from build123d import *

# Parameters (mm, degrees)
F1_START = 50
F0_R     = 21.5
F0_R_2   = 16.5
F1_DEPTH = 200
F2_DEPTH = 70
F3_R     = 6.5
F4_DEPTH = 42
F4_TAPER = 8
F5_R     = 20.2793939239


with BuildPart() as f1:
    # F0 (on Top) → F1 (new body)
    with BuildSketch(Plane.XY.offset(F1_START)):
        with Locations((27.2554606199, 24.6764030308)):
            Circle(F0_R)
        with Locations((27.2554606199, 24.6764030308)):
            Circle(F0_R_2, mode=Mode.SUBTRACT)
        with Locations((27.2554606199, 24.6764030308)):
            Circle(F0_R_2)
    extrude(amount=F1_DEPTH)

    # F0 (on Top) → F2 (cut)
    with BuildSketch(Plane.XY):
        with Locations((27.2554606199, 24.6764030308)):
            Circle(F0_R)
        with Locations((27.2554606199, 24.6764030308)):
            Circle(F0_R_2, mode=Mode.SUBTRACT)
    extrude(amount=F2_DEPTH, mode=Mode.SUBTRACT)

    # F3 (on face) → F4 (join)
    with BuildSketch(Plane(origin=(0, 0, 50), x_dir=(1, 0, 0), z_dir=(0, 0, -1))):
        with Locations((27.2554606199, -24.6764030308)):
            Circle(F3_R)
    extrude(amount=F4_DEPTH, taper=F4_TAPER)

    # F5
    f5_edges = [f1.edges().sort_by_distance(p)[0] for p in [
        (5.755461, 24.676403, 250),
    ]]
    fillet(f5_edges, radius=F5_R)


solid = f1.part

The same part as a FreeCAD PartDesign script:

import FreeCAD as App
import Part
import Sketcher
from FreeCAD import Vector
Q = App.Units.Quantity


def edges_at(feature, points):
    """Names of the edges that pass closest to the given points."""
    edges = feature.Shape.Edges
    near = lambda p: min(range(len(edges)), key=lambda i: edges[i].distToShape(Part.Vertex(*p))[0])
    return sorted({f"Edge{near(p) + 1}" for p in points})

doc = App.newDocument("Part")
body = doc.addObject("PartDesign::Body", "Body")

# Sketch on XY plane
sketch1 = doc.addObject("Sketcher::SketchObject", "Sketch")
body.addObject(sketch1)
sketch1.AttachmentSupport = (doc.XY_Plane, [""])
sketch1.MapMode = "FlatFace"
sketch1.AttachmentOffset = App.Placement(Vector(0, 0, 50), App.Rotation())
sketch1.addGeometry(Part.Circle(Vector(27.255461, 24.676403, 0), Vector(0, 0, 1), 21.5), False)
sketch1.addConstraint([
    Sketcher.Constraint("Diameter", 0, Q("43 mm")),
    Sketcher.Constraint("DistanceX", -1, 1, 0, 3, Q("27.255461 mm")),
    Sketcher.Constraint("DistanceY", -1, 1, 0, 3, Q("24.676403 mm")),
])
pad1 = doc.addObject("PartDesign::Pad", "Pad")
body.addObject(pad1)
pad1.Profile = sketch1
pad1.Length = 200

# Sketch on XY plane
sketch2 = doc.addObject("Sketcher::SketchObject", "Sketch001")
body.addObject(sketch2)
sketch2.AttachmentSupport = (doc.XY_Plane, [""])
sketch2.MapMode = "FlatFace"
sketch2.addGeometry([
    Part.Circle(Vector(27.255461, 24.676403, 0), Vector(0, 0, 1), 21.5),
    Part.Circle(Vector(27.255461, 24.676403, 0), Vector(0, 0, 1), 16.5),
], False)
sketch2.addConstraint([
    Sketcher.Constraint("Coincident", 1, 3, 0, 3),
    Sketcher.Constraint("Diameter", 0, Q("43 mm")),
    Sketcher.Constraint("Diameter", 1, Q("33 mm")),
    Sketcher.Constraint("DistanceX", -1, 1, 0, 3, Q("27.255461 mm")),
    Sketcher.Constraint("DistanceY", -1, 1, 0, 3, Q("24.676403 mm")),
])
pocket1 = doc.addObject("PartDesign::Pocket", "Pocket")
body.addObject(pocket1)
pocket1.Profile = sketch2
pocket1.Length = 70
pocket1.Reversed = True

# Sketch on XY plane
sketch3 = doc.addObject("Sketcher::SketchObject", "Sketch002")
body.addObject(sketch3)
sketch3.AttachmentSupport = (doc.XY_Plane, [""])
sketch3.MapMode = "FlatFace"
sketch3.AttachmentOffset = App.Placement(Vector(0, 0, 50), App.Rotation())
sketch3.addGeometry(Part.Circle(Vector(27.255461, 24.676403, 0), Vector(0, 0, 1), 6.5), False)
sketch3.addConstraint([
    Sketcher.Constraint("Diameter", 0, Q("13 mm")),
    Sketcher.Constraint("DistanceX", -1, 1, 0, 3, Q("27.255461 mm")),
    Sketcher.Constraint("DistanceY", -1, 1, 0, 3, Q("24.676403 mm")),
])
pad2 = doc.addObject("PartDesign::Pad", "Pad001")
body.addObject(pad2)
pad2.Profile = sketch3
pad2.Length = 42
pad2.Reversed = True
pad2.TaperAngle = -8
doc.recompute()

fillet = doc.addObject("PartDesign::Fillet", "Fillet")
body.addObject(fillet)
fillet.Base = (pad2, edges_at(pad2, [(5.755, 24.676, 250)]))
fillet.Radius = 20.279394

doc.recompute()
